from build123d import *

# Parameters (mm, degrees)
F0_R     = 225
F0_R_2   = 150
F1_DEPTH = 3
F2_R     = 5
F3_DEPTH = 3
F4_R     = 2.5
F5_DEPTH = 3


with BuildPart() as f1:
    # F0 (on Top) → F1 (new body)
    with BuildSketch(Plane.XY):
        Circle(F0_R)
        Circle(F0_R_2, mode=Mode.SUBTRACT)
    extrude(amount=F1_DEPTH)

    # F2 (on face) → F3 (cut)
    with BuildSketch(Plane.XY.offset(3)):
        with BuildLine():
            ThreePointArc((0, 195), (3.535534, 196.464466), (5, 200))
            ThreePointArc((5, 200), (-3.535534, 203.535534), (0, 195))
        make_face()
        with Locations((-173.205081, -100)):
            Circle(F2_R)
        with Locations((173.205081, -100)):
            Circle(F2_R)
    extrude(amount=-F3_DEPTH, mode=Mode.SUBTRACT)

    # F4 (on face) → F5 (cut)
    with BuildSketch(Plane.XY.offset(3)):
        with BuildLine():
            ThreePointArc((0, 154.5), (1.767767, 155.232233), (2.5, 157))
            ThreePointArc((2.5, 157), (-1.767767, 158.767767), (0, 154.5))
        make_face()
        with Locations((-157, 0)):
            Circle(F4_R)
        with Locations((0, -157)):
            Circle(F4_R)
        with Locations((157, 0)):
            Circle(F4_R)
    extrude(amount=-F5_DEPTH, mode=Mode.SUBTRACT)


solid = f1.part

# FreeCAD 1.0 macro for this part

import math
import FreeCAD as App
import Part
import Sketcher

V = App.Vector

doc = App.newDocument("Part")
body = doc.addObject("PartDesign::Body", "Body")

sketch1 = doc.addObject("Sketcher::SketchObject", "Sketch")
body.addObject(sketch1)
sketch1.AttachmentSupport = (doc.XY_Plane, [""])
sketch1.MapMode = "FlatFace"
sketch1.addGeometry(Part.Circle(V(0, 0, 0), V(0, 0, 1), 225), False)
sketch1.addGeometry(Part.Circle(V(0, 0, 0), V(0, 0, 1), 150), False)
sketch1.addConstraint(Sketcher.Constraint("Coincident", 0, 3, -1, 1))
sketch1.addConstraint(Sketcher.Constraint("Coincident", 1, 3, -1, 1))
sketch1.addConstraint(Sketcher.Constraint("Diameter", 0, 450.0))
sketch1.addConstraint(Sketcher.Constraint("Diameter", 1, 300.0))
pad1 = doc.addObject("PartDesign::Pad", "Pad")
body.addObject(pad1)
pad1.Profile = sketch1
pad1.Length = 3

sketch2 = doc.addObject("Sketcher::SketchObject", "Sketch001")
body.addObject(sketch2)
sketch2.AttachmentSupport = (doc.XY_Plane, [""])
sketch2.MapMode = "FlatFace"
sketch2.AttachmentOffset = App.Placement(V(0, 0, 3), App.Rotation())
sketch2.addGeometry(Part.ArcOfCircle(Part.Circle(V(0, 200, 0), V(0, 0, 1), 5), math.radians(-90), math.radians(0)), False)
sketch2.addGeometry(Part.ArcOfCircle(Part.Circle(V(0, 200, 0), V(0, 0, 1), 5), math.radians(0), math.radians(270)), False)
sketch2.addGeometry(Part.Circle(V(-173.2, -100, 0), V(0, 0, 1), 5), False)
sketch2.addGeometry(Part.Circle(V(173.2, -100, 0), V(0, 0, 1), 5), False)
sketch2.addConstraint(Sketcher.Constraint("Tangent", 0, 1, 1, 2))
sketch2.addConstraint(Sketcher.Constraint("Coincident", 1, 1, 0, 2))
sketch2.addConstraint(Sketcher.Constraint("Equal", 1, 2))
sketch2.addConstraint(Sketcher.Constraint("Equal", 2, 3))
sketch2.addConstraint(Sketcher.Constraint("Symmetric", 2, 3, 3, 3, -2))
sketch2.addConstraint(Sketcher.Constraint("PointOnObject", 0, 3, -2))
sketch2.addConstraint(Sketcher.Constraint("PointOnObject", 0, 1, -2))
sketch2.addConstraint(Sketcher.Constraint("Horizontal", 0, 3, 1, 1))
sketch2.addConstraint(Sketcher.Constraint("Diameter", 2, 10.0))
sketch2.addConstraint(Sketcher.Constraint("DistanceY", -1, 1, 0, 3, 200.0))
sketch2.addConstraint(Sketcher.Constraint("DistanceY", 2, 3, -1, 1, 100.0))
sketch2.addConstraint(Sketcher.Constraint("DistanceX", 2, 3, -1, 1, 173.205081))
pocket1 = doc.addObject("PartDesign::Pocket", "Pocket")
body.addObject(pocket1)
pocket1.Profile = sketch2
pocket1.Length = 3

sketch3 = doc.addObject("Sketcher::SketchObject", "Sketch002")
body.addObject(sketch3)
sketch3.AttachmentSupport = (doc.XY_Plane, [""])
sketch3.MapMode = "FlatFace"
sketch3.AttachmentOffset = App.Placement(V(0, 0, 3), App.Rotation())
sketch3.addGeometry(Part.ArcOfCircle(Part.Circle(V(0, 157, 0), V(0, 0, 1), 2.5), math.radians(-90), math.radians(0)), False)
sketch3.addGeometry(Part.ArcOfCircle(Part.Circle(V(0, 157, 0), V(0, 0, 1), 2.5), math.radians(0), math.radians(270)), False)
sketch3.addGeometry(Part.Circle(V(-157, 0, 0), V(0, 0, 1), 2.5), False)
sketch3.addGeometry(Part.Circle(V(0, -157, 0), V(0, 0, 1), 2.5), False)
sketch3.addGeometry(Part.Circle(V(157, 0, 0), V(0, 0, 1), 2.5), False)
sketch3.addConstraint(Sketcher.Constraint("Tangent", 0, 1, 1, 2))
sketch3.addConstraint(Sketcher.Constraint("Coincident", 1, 1, 0, 2))
sketch3.addConstraint(Sketcher.Constraint("Equal", 1, 2))
sketch3.addConstraint(Sketcher.Constraint("Equal", 2, 3))
sketch3.addConstraint(Sketcher.Constraint("Equal", 3, 4))
sketch3.addConstraint(Sketcher.Constraint("Symmetric", 0, 3, 3, 3, -1, 1))
sketch3.addConstraint(Sketcher.Constraint("Symmetric", 2, 3, 4, 3, -1, 1))
sketch3.addConstraint(Sketcher.Constraint("PointOnObject", 0, 3, -2))
sketch3.addConstraint(Sketcher.Constraint("PointOnObject", 2, 3, -1))
sketch3.addConstraint(Sketcher.Constraint("PointOnObject", 0, 1, -2))
sketch3.addConstraint(Sketcher.Constraint("Horizontal", 0, 3, 1, 1))
sketch3.addConstraint(Sketcher.Constraint("Diameter", 2, 5.0))
sketch3.addConstraint(Sketcher.Constraint("DistanceY", -1, 1, 0, 3, 157.0))
sketch3.addConstraint(Sketcher.Constraint("DistanceX", 2, 3, -1, 1, 157.0))
pocket2 = doc.addObject("PartDesign::Pocket", "Pocket001")
body.addObject(pocket2)
pocket2.Profile = sketch3
pocket2.Length = 3

doc.recompute()
